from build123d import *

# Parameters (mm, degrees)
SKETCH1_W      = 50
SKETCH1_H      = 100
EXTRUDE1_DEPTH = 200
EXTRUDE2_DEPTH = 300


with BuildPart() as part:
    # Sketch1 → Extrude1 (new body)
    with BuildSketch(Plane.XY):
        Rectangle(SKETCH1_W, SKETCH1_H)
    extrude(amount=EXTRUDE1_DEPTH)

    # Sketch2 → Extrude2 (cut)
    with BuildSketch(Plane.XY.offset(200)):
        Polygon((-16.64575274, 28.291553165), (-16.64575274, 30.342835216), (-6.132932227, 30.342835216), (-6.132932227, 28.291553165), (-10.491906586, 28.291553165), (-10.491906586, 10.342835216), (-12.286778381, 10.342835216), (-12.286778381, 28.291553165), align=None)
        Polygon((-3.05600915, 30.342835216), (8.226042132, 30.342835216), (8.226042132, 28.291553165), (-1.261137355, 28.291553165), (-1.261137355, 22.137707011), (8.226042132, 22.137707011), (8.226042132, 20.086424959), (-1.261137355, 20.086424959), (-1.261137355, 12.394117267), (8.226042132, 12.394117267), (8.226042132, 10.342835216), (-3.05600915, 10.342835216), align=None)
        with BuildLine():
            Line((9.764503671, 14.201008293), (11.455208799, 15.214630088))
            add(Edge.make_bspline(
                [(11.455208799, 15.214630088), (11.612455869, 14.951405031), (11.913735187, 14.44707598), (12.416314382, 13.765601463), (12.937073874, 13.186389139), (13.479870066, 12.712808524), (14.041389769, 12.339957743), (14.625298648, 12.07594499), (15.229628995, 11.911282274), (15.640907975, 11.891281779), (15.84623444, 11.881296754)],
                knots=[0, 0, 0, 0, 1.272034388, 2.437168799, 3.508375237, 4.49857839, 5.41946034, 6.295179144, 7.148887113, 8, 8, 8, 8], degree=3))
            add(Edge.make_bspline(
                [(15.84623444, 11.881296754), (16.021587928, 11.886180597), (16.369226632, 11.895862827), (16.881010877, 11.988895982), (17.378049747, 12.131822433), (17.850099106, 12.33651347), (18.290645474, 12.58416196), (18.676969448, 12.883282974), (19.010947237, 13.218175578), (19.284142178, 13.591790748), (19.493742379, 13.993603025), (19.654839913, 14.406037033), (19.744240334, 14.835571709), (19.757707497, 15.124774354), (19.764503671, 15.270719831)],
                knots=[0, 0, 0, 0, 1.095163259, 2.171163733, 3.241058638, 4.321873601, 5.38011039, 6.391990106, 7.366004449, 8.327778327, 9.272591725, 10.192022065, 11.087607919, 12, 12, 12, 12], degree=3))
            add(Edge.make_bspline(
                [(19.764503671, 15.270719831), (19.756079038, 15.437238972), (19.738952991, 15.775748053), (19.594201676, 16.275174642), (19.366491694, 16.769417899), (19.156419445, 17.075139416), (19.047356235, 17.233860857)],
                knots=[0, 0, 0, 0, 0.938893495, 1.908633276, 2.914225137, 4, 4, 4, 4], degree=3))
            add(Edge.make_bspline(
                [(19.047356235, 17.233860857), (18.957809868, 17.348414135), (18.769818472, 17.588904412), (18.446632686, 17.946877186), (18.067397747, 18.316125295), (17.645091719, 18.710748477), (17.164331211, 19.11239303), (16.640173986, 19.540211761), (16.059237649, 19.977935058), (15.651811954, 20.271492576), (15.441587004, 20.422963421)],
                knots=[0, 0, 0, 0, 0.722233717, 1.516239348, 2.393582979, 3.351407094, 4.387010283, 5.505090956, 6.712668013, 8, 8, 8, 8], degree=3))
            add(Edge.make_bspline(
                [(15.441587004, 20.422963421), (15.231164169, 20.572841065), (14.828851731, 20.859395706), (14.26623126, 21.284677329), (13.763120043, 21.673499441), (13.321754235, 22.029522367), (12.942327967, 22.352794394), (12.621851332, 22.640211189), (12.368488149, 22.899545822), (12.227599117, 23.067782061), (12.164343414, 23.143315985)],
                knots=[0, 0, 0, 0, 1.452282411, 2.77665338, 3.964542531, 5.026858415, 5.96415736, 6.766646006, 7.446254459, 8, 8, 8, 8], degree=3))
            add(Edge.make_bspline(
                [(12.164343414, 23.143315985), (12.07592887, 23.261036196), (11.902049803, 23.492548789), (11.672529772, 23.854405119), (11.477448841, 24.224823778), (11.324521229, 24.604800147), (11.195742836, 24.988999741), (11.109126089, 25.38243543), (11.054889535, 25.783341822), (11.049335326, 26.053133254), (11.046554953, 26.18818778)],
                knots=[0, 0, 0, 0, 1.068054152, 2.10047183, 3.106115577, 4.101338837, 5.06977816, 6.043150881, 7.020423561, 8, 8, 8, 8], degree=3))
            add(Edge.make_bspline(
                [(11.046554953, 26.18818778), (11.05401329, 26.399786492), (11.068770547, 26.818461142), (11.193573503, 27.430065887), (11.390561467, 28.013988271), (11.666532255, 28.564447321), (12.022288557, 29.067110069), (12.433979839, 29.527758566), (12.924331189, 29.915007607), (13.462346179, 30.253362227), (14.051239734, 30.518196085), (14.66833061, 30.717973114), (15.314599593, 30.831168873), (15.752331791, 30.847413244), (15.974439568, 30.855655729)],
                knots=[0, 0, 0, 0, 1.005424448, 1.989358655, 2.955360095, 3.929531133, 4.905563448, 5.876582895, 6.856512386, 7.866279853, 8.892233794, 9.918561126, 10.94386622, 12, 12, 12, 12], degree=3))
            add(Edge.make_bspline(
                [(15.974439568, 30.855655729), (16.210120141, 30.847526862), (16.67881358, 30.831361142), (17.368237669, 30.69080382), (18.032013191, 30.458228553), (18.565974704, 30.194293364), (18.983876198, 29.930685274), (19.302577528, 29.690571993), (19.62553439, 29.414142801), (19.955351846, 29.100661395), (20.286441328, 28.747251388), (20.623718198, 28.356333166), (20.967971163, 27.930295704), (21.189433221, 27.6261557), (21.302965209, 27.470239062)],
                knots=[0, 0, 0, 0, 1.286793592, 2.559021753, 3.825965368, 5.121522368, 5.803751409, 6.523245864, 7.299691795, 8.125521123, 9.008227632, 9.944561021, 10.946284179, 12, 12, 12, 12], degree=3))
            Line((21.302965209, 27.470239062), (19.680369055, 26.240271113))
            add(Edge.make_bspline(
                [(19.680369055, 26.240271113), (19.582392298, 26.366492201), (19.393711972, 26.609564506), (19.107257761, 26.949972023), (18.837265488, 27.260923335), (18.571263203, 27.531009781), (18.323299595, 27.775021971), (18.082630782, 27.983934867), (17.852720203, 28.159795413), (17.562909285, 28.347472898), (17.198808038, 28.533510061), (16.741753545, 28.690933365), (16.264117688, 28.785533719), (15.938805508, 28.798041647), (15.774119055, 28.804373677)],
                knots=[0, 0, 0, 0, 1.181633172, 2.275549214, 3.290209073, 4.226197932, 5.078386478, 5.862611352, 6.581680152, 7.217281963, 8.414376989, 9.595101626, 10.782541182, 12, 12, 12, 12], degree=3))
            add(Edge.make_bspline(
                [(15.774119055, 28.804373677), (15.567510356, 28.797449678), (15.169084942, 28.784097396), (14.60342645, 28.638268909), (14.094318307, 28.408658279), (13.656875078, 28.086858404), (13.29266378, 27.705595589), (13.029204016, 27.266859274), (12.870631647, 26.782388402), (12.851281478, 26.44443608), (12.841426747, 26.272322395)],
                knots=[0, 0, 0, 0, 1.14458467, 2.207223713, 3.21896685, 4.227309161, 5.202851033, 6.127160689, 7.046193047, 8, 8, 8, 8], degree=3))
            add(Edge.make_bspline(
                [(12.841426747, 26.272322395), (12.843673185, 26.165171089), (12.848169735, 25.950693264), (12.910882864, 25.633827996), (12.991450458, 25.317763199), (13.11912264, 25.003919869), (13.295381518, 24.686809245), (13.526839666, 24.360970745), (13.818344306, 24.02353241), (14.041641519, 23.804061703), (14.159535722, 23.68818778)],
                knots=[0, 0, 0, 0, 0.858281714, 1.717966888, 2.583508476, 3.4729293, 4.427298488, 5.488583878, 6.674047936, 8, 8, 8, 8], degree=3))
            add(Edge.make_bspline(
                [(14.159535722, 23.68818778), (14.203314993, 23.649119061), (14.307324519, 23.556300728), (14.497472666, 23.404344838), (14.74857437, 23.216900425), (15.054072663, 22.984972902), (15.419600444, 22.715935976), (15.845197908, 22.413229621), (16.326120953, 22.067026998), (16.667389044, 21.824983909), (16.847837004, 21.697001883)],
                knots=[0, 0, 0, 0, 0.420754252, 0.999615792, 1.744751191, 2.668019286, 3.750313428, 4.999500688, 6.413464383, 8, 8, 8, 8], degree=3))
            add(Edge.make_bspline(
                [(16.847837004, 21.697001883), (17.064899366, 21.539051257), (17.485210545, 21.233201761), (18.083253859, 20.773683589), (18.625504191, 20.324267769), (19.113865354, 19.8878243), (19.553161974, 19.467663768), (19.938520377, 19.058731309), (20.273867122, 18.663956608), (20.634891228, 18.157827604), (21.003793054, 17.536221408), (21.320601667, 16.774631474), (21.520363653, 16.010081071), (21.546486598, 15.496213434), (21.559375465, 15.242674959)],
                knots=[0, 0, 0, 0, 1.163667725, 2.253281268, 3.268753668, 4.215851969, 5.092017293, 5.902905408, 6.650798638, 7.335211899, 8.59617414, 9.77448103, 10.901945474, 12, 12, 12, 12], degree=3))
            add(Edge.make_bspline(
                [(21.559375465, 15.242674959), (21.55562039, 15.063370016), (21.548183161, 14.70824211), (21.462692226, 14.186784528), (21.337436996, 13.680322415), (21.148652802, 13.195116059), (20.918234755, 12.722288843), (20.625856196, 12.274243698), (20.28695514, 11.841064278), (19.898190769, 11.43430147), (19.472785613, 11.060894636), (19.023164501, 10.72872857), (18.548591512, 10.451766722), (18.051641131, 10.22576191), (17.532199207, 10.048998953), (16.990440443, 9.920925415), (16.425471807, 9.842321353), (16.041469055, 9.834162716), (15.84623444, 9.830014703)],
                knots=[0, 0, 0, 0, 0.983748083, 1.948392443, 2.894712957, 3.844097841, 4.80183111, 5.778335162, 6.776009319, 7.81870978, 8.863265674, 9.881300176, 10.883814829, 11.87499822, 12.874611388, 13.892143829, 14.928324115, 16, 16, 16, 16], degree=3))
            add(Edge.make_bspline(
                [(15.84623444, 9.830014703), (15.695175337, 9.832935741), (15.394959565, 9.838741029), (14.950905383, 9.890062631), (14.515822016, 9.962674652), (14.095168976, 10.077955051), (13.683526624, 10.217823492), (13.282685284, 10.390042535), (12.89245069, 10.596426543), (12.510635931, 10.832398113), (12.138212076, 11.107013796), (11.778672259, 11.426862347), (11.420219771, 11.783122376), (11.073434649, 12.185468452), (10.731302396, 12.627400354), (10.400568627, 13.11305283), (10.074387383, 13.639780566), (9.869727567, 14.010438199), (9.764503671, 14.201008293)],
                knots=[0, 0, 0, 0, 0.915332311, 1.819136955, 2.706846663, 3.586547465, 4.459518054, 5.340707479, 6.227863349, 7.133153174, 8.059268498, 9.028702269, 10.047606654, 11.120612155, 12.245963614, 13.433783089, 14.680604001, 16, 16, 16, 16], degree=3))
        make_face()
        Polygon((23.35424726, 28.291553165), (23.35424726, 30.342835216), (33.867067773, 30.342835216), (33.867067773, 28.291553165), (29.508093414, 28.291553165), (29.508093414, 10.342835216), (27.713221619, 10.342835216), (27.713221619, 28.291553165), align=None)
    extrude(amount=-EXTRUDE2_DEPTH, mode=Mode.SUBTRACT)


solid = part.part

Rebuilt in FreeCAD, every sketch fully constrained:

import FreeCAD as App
import Part
import Sketcher

V = App.Vector
Q = App.Units.Quantity


def add_polygon(sketch, points):
    """Adds a closed chain of lines whose ends are joined by coincident constraints."""
    first, n = sketch.GeometryCount, len(points)
    for a, b in zip(points, points[1:] + points[:1]):
        sketch.addGeometry(Part.LineSegment(App.Vector(*a, 0), App.Vector(*b, 0)), False)
    for i in range(n):
        sketch.addConstraint(Sketcher.Constraint("Coincident", first + i, 2, first + (i + 1) % n, 1))

doc = App.newDocument("Part")
body = doc.addObject("PartDesign::Body", "Body")

# Sketch on XY plane
sketch1 = doc.addObject("Sketcher::SketchObject", "Sketch")
body.addObject(sketch1)
sketch1.AttachmentSupport = (doc.XY_Plane, [""])
sketch1.MapMode = "FlatFace"
add_polygon(sketch1, [(-25, 50), (-25, -50), (25, -50), (25, 50)])  # lines 0-3
sketch1.addConstraint(Sketcher.Constraint("Vertical", 0))
sketch1.addConstraint(Sketcher.Constraint("Horizontal", 1))
sketch1.addConstraint(Sketcher.Constraint("Vertical", 2))
sketch1.addConstraint(Sketcher.Constraint("Horizontal", 3))
sketch1.addConstraint(Sketcher.Constraint("Symmetric", 0, 2, 2, 2, -1, 1))
sketch1.addConstraint(Sketcher.Constraint("DistanceX", 1, 1, 1, 2, Q("50 mm")))
sketch1.addConstraint(Sketcher.Constraint("DistanceY", 0, 2, 0, 1, Q("100 mm")))
pad1 = doc.addObject("PartDesign::Pad", "Pad")
body.addObject(pad1)
pad1.Profile = sketch1
pad1.Length = 200

# Sketch on XY plane
sketch2 = doc.addObject("Sketcher::SketchObject", "Sketch001")
body.addObject(sketch2)
sketch2.AttachmentSupport = (doc.XY_Plane, [""])
sketch2.MapMode = "FlatFace"
sketch2.AttachmentOffset = App.Placement(V(0, 0, 200), App.Rotation())
add_polygon(sketch2, [(-16.645753, 30.342835), (-16.645753, 28.291553), (-12.286778, 28.291553), (-12.286778, 10.342835), (-10.491907, 10.342835), (-10.491907, 28.291553), (-6.132932, 28.291553), (-6.132932, 30.342835)])  # lines 0-7
add_polygon(sketch2, [(8.226042, 30.342835), (-3.056009, 30.342835), (-3.056009, 10.342835), (8.226042, 10.342835), (8.226042, 12.394117), (-1.261137, 12.394117), (-1.261137, 20.086425), (8.226042, 20.086425), (8.226042, 22.137707), (-1.261137, 22.137707), (-1.261137, 28.291553), (8.226042, 28.291553)])  # lines 8-19
sketch2.addGeometry(Part.LineSegment(V(11.455209, 15.21463, 0), V(9.764504, 14.201008, 0)), False)  # 20
sketch2.addGeometry(Part.BSplineCurve([V(15.846234, 9.830015, 0), V(15.695175, 9.832936, 0), V(15.39496, 9.838741, 0), V(14.950905, 9.890063, 0), V(14.515822, 9.962675, 0), V(14.095169, 10.077955, 0), V(13.683527, 10.217823, 0), V(13.282685, 10.390043, 0), V(12.892451, 10.596427, 0), V(12.510636, 10.832398, 0), V(12.138212, 11.107014, 0), V(11.778672, 11.426862, 0), V(11.42022, 11.783122, 0), V(11.073435, 12.185468, 0), V(10.731302, 12.6274, 0), V(10.400569, 13.113053, 0), V(10.074387, 13.639781, 0), V(9.869728, 14.010438, 0), V(9.764504, 14.201008, 0)], [4, 1, 1, 1, 1, 1, 1, 1, 1, 1, 1, 1, 1, 1, 1, 1, 4], [0, 0.915332311, 1.819136955, 2.706846663, 3.586547465, 4.459518054, 5.340707479, 6.227863349, 7.133153174, 8.059268498, 9.028702269, 10.047606654, 11.120612155, 12.245963614, 13.433783089, 14.680604001, 16], False, 3, [1, 1, 1, 1, 1, 1, 1, 1, 1, 1, 1, 1, 1, 1, 1, 1, 1, 1, 1], False), False)  # 21
sketch2.addGeometry(Part.BSplineCurve([V(21.559375, 15.242675, 0), V(21.55562, 15.06337, 0), V(21.548183, 14.708242, 0), V(21.462692, 14.186785, 0), V(21.337437, 13.680322, 0), V(21.148653, 13.195116, 0), V(20.918235, 12.722289, 0), V(20.625856, 12.274244, 0), V(20.286955, 11.841064, 0), V(19.898191, 11.434301, 0), V(19.472786, 11.060895, 0), V(19.023165, 10.728729, 0), V(18.548592, 10.451767, 0), V(18.051641, 10.225762, 0), V(17.532199, 10.048999, 0), V(16.99044, 9.920925, 0), V(16.425472, 9.842321, 0), V(16.041469, 9.834163, 0), V(15.846234, 9.830015, 0)], [4, 1, 1, 1, 1, 1, 1, 1, 1, 1, 1, 1, 1, 1, 1, 1, 4], [0, 0.983748083, 1.948392443, 2.894712957, 3.844097841, 4.80183111, 5.778335162, 6.776009319, 7.81870978, 8.863265674, 9.881300176, 10.883814829, 11.87499822, 12.874611388, 13.892143829, 14.928324115, 16], False, 3, [1, 1, 1, 1, 1, 1, 1, 1, 1, 1, 1, 1, 1, 1, 1, 1, 1, 1, 1], False), False)  # 22
sketch2.addGeometry(Part.BSplineCurve([V(16.847837, 21.697002, 0), V(17.064899, 21.539051, 0), V(17.485211, 21.233202, 0), V(18.083254, 20.773684, 0), V(18.625504, 20.324268, 0), V(19.113865, 19.887824, 0), V(19.553162, 19.467664, 0), V(19.93852, 19.058731, 0), V(20.273867, 18.663957, 0), V(20.634891, 18.157828, 0), V(21.003793, 17.536221, 0), V(21.320602, 16.774631, 0), V(21.520364, 16.010081, 0), V(21.546487, 15.496213, 0), V(21.559375, 15.242675, 0)], [4, 1, 1, 1, 1, 1, 1, 1, 1, 1, 1, 1, 4], [0, 1.163667725, 2.253281268, 3.268753668, 4.215851969, 5.092017293, 5.902905408, 6.650798638, 7.335211899, 8.59617414, 9.77448103, 10.901945474, 12], False, 3, [1, 1, 1, 1, 1, 1, 1, 1, 1, 1, 1, 1, 1, 1, 1], False), False)  # 23
sketch2.addGeometry(Part.BSplineCurve([V(14.159536, 23.688188, 0), V(14.203315, 23.649119, 0), V(14.307325, 23.556301, 0), V(14.497473, 23.404345, 0), V(14.748574, 23.2169, 0), V(15.054073, 22.984973, 0), V(15.4196, 22.715936, 0), V(15.845198, 22.41323, 0), V(16.326121, 22.067027, 0), V(16.667389, 21.824984, 0), V(16.847837, 21.697002, 0)], [4, 1, 1, 1, 1, 1, 1, 1, 4], [0, 0.420754252, 0.999615792, 1.744751191, 2.668019286, 3.750313428, 4.999500688, 6.413464383, 8], False, 3, [1, 1, 1, 1, 1, 1, 1, 1, 1, 1, 1], False), False)  # 24
sketch2.addGeometry(Part.BSplineCurve([V(12.841427, 26.272322, 0), V(12.843673, 26.165171, 0), V(12.84817, 25.950693, 0), V(12.910883, 25.633828, 0), V(12.99145, 25.317763, 0), V(13.119123, 25.00392, 0), V(13.295382, 24.686809, 0), V(13.52684, 24.360971, 0), V(13.818344, 24.023532, 0), V(14.041642, 23.804062, 0), V(14.159536, 23.688188, 0)], [4, 1, 1, 1, 1, 1, 1, 1, 4], [0, 0.858281714, 1.717966888, 2.583508476, 3.4729293, 4.427298488, 5.488583878, 6.674047936, 8], False, 3, [1, 1, 1, 1, 1, 1, 1, 1, 1, 1, 1], False), False)  # 25
sketch2.addGeometry(Part.BSplineCurve([V(15.774119, 28.804374, 0), V(15.56751, 28.79745, 0), V(15.169085, 28.784097, 0), V(14.603426, 28.638269, 0), V(14.094318, 28.408658, 0), V(13.656875, 28.086858, 0), V(13.292664, 27.705596, 0), V(13.029204, 27.266859, 0), V(12.870632, 26.782388, 0), V(12.851281, 26.444436, 0), V(12.841427, 26.272322, 0)], [4, 1, 1, 1, 1, 1, 1, 1, 4], [0, 1.14458467, 2.207223713, 3.21896685, 4.227309161, 5.202851033, 6.127160689, 7.046193047, 8], False, 3, [1, 1, 1, 1, 1, 1, 1, 1, 1, 1, 1], False), False)  # 26
sketch2.addGeometry(Part.BSplineCurve([V(19.680369, 26.240271, 0), V(19.582392, 26.366492, 0), V(19.393712, 26.609565, 0), V(19.107258, 26.949972, 0), V(18.837265, 27.260923, 0), V(18.571263, 27.53101, 0), V(18.3233, 27.775022, 0), V(18.082631, 27.983935, 0), V(17.85272, 28.159795, 0), V(17.562909, 28.347473, 0), V(17.198808, 28.53351, 0), V(16.741754, 28.690933, 0), V(16.264118, 28.785534, 0), V(15.938806, 28.798042, 0), V(15.774119, 28.804374, 0)], [4, 1, 1, 1, 1, 1, 1, 1, 1, 1, 1, 1, 4], [0, 1.181633172, 2.275549214, 3.290209073, 4.226197932, 5.078386478, 5.862611352, 6.581680152, 7.217281963, 8.414376989, 9.595101626, 10.782541182, 12], False, 3, [1, 1, 1, 1, 1, 1, 1, 1, 1, 1, 1, 1, 1, 1, 1], False), False)  # 27
sketch2.addGeometry(Part.LineSegment(V(19.680369, 26.240271, 0), V(21.302965, 27.470239, 0)), False)  # 28
sketch2.addGeometry(Part.BSplineCurve([V(15.97444, 30.855656, 0), V(16.21012, 30.847527, 0), V(16.678814, 30.831361, 0), V(17.368238, 30.690804, 0), V(18.032013, 30.458229, 0), V(18.565975, 30.194293, 0), V(18.983876, 29.930685, 0), V(19.302578, 29.690572, 0), V(19.625534, 29.414143, 0), V(19.955352, 29.100661, 0), V(20.286441, 28.747251, 0), V(20.623718, 28.356333, 0), V(20.967971, 27.930296, 0), V(21.189433, 27.626156, 0), V(21.302965, 27.470239, 0)], [4, 1, 1, 1, 1, 1, 1, 1, 1, 1, 1, 1, 4], [0, 1.286793592, 2.559021753, 3.825965368, 5.121522368, 5.803751409, 6.523245864, 7.299691795, 8.125521123, 9.008227632, 9.944561021, 10.946284179, 12], False, 3, [1, 1, 1, 1, 1, 1, 1, 1, 1, 1, 1, 1, 1, 1, 1], False), False)  # 29
sketch2.addGeometry(Part.BSplineCurve([V(11.046555, 26.188188, 0), V(11.054013, 26.399786, 0), V(11.068771, 26.818461, 0), V(11.193574, 27.430066, 0), V(11.390561, 28.013988, 0), V(11.666532, 28.564447, 0), V(12.022289, 29.06711, 0), V(12.43398, 29.527759, 0), V(12.924331, 29.915008, 0), V(13.462346, 30.253362, 0), V(14.05124, 30.518196, 0), V(14.668331, 30.717973, 0), V(15.3146, 30.831169, 0), V(15.752332, 30.847413, 0), V(15.97444, 30.855656, 0)], [4, 1, 1, 1, 1, 1, 1, 1, 1, 1, 1, 1, 4], [0, 1.005424448, 1.989358655, 2.955360095, 3.929531133, 4.905563448, 5.876582895, 6.856512386, 7.866279853, 8.892233794, 9.918561126, 10.94386622, 12], False, 3, [1, 1, 1, 1, 1, 1, 1, 1, 1, 1, 1, 1, 1, 1, 1], False), False)  # 30
sketch2.addGeometry(Part.BSplineCurve([V(12.164343, 23.143316, 0), V(12.075929, 23.261036, 0), V(11.90205, 23.492549, 0), V(11.67253, 23.854405, 0), V(11.477449, 24.224824, 0), V(11.324521, 24.6048, 0), V(11.195743, 24.989, 0), V(11.109126, 25.382435, 0), V(11.05489, 25.783342, 0), V(11.049335, 26.053133, 0), V(11.046555, 26.188188, 0)], [4, 1, 1, 1, 1, 1, 1, 1, 4], [0, 1.068054152, 2.10047183, 3.106115577, 4.101338837, 5.06977816, 6.043150881, 7.020423561, 8], False, 3, [1, 1, 1, 1, 1, 1, 1, 1, 1, 1, 1], False), False)  # 31
sketch2.addGeometry(Part.BSplineCurve([V(15.441587, 20.422963, 0), V(15.231164, 20.572841, 0), V(14.828852, 20.859396, 0), V(14.266231, 21.284677, 0), V(13.76312, 21.673499, 0), V(13.321754, 22.029522, 0), V(12.942328, 22.352794, 0), V(12.621851, 22.640211, 0), V(12.368488, 22.899546, 0), V(12.227599, 23.067782, 0), V(12.164343, 23.143316, 0)], [4, 1, 1, 1, 1, 1, 1, 1, 4], [0, 1.452282411, 2.77665338, 3.964542531, 5.026858415, 5.96415736, 6.766646006, 7.446254459, 8], False, 3, [1, 1, 1, 1, 1, 1, 1, 1, 1, 1, 1], False), False)  # 32
sketch2.addGeometry(Part.BSplineCurve([V(19.047356, 17.233861, 0), V(18.95781, 17.348414, 0), V(18.769818, 17.588904, 0), V(18.446633, 17.946877, 0), V(18.067398, 18.316125, 0), V(17.645092, 18.710748, 0), V(17.164331, 19.112393, 0), V(16.640174, 19.540212, 0), V(16.059238, 19.977935, 0), V(15.651812, 20.271493, 0), V(15.441587, 20.422963, 0)], [4, 1, 1, 1, 1, 1, 1, 1, 4], [0, 0.722233717, 1.516239348, 2.393582979, 3.351407094, 4.387010283, 5.505090956, 6.712668013, 8], False, 3, [1, 1, 1, 1, 1, 1, 1, 1, 1, 1, 1], False), False)  # 33
sketch2.addGeometry(Part.BSplineCurve([V(19.764504, 15.27072, 0), V(19.756079, 15.437239, 0), V(19.738953, 15.775748, 0), V(19.594202, 16.275175, 0), V(19.366492, 16.769418, 0), V(19.156419, 17.075139, 0), V(19.047356, 17.233861, 0)], [4, 1, 1, 1, 4], [0, 0.938893495, 1.908633276, 2.914225137, 4], False, 3, [1, 1, 1, 1, 1, 1, 1], False), False)  # 34
sketch2.addGeometry(Part.BSplineCurve([V(15.846234, 11.881297, 0), V(16.021588, 11.886181, 0), V(16.369227, 11.895863, 0), V(16.881011, 11.988896, 0), V(17.37805, 12.131822, 0), V(17.850099, 12.336513, 0), V(18.290645, 12.584162, 0), V(18.676969, 12.883283, 0), V(19.010947, 13.218176, 0), V(19.284142, 13.591791, 0), V(19.493742, 13.993603, 0), V(19.65484, 14.406037, 0), V(19.74424, 14.835572, 0), V(19.757707, 15.124774, 0), V(19.764504, 15.27072, 0)], [4, 1, 1, 1, 1, 1, 1, 1, 1, 1, 1, 1, 4], [0, 1.095163259, 2.171163733, 3.241058638, 4.321873601, 5.38011039, 6.391990106, 7.366004449, 8.327778327, 9.272591725, 10.192022065, 11.087607919, 12], False, 3, [1, 1, 1, 1, 1, 1, 1, 1, 1, 1, 1, 1, 1, 1, 1], False), False)  # 35
sketch2.addGeometry(Part.BSplineCurve([V(11.455209, 15.21463, 0), V(11.612456, 14.951405, 0), V(11.913735, 14.447076, 0), V(12.416314, 13.765601, 0), V(12.937074, 13.186389, 0), V(13.47987, 12.712809, 0), V(14.04139, 12.339958, 0), V(14.625299, 12.075945, 0), V(15.229629, 11.911282, 0), V(15.640908, 11.891282, 0), V(15.846234, 11.881297, 0)], [4, 1, 1, 1, 1, 1, 1, 1, 4], [0, 1.272034388, 2.437168799, 3.508375237, 4.49857839, 5.41946034, 6.295179144, 7.148887113, 8], False, 3, [1, 1, 1, 1, 1, 1, 1, 1, 1, 1, 1], False), False)  # 36
add_polygon(sketch2, [(23.354247, 30.342835), (23.354247, 28.291553), (27.713222, 28.291553), (27.713222, 10.342835), (29.508093, 10.342835), (29.508093, 28.291553), (33.867068, 28.291553), (33.867068, 30.342835)])  # lines 37-44
sketch2.addConstraint(Sketcher.Constraint("Block", 21))
sketch2.addConstraint(Sketcher.Constraint("Block", 22))
sketch2.addConstraint(Sketcher.Constraint("Block", 23))
sketch2.addConstraint(Sketcher.Constraint("Block", 24))
sketch2.addConstraint(Sketcher.Constraint("Block", 25))
sketch2.addConstraint(Sketcher.Constraint("Block", 26))
sketch2.addConstraint(Sketcher.Constraint("Block", 27))
sketch2.addConstraint(Sketcher.Constraint("Block", 29))
sketch2.addConstraint(Sketcher.Constraint("Block", 30))
sketch2.addConstraint(Sketcher.Constraint("Block", 31))
sketch2.addConstraint(Sketcher.Constraint("Block", 32))
sketch2.addConstraint(Sketcher.Constraint("Block", 33))
sketch2.addConstraint(Sketcher.Constraint("Block", 34))
sketch2.addConstraint(Sketcher.Constraint("Block", 35))
sketch2.addConstraint(Sketcher.Constraint("Block", 36))
sketch2.addConstraint(Sketcher.Constraint("Coincident", 20, 2, 21, 2))
sketch2.addConstraint(Sketcher.Constraint("Coincident", 27, 1, 28, 1))
sketch2.addConstraint(Sketcher.Constraint("Coincident", 28, 2, 29, 2))
sketch2.addConstraint(Sketcher.Constraint("Coincident", 36, 1, 20, 1))
sketch2.addConstraint(Sketcher.Constraint("Vertical", 0))
sketch2.addConstraint(Sketcher.Constraint("Horizontal", 1))
sketch2.addConstraint(Sketcher.Constraint("Vertical", 2))
sketch2.addConstraint(Sketcher.Constraint("Horizontal", 3))
sketch2.addConstraint(Sketcher.Constraint("Vertical", 4))
sketch2.addConstraint(Sketcher.Constraint("Horizontal", 5))
sketch2.addConstraint(Sketcher.Constraint("Vertical", 6))
sketch2.addConstraint(Sketcher.Constraint("Horizontal", 7))
sketch2.addConstraint(Sketcher.Constraint("Horizontal", 8))
sketch2.addConstraint(Sketcher.Constraint("Vertical", 9))
sketch2.addConstraint(Sketcher.Constraint("Horizontal", 10))
sketch2.addConstraint(Sketcher.Constraint("Vertical", 11))
sketch2.addConstraint(Sketcher.Constraint("Horizontal", 12))
sketch2.addConstraint(Sketcher.Constraint("Vertical", 13))
sketch2.addConstraint(Sketcher.Constraint("Horizontal", 14))
sketch2.addConstraint(Sketcher.Constraint("Vertical", 15))
sketch2.addConstraint(Sketcher.Constraint("Horizontal", 16))
sketch2.addConstraint(Sketcher.Constraint("Vertical", 17))
sketch2.addConstraint(Sketcher.Constraint("Horizontal", 18))
sketch2.addConstraint(Sketcher.Constraint("Vertical", 19))
sketch2.addConstraint(Sketcher.Constraint("Vertical", 37))
sketch2.addConstraint(Sketcher.Constraint("Horizontal", 38))
sketch2.addConstraint(Sketcher.Constraint("Vertical", 39))
sketch2.addConstraint(Sketcher.Constraint("Horizontal", 40))
sketch2.addConstraint(Sketcher.Constraint("Vertical", 41))
sketch2.addConstraint(Sketcher.Constraint("Horizontal", 42))
sketch2.addConstraint(Sketcher.Constraint("Vertical", 43))
sketch2.addConstraint(Sketcher.Constraint("Horizontal", 44))
sketch2.addConstraint(Sketcher.Constraint("Horizontal", 1, 2, 4, 2))
sketch2.addConstraint(Sketcher.Constraint("Horizontal", 7, 2, 8, 2))
sketch2.addConstraint(Sketcher.Constraint("Horizontal", 3, 2, 9, 2))
sketch2.addConstraint(Sketcher.Constraint("Horizontal", 5, 2, 17, 2))
sketch2.addConstraint(Sketcher.Constraint("Horizontal", 18, 2, 37, 2))
sketch2.addConstraint(Sketcher.Constraint("Horizontal", 10, 2, 39, 2))
sketch2.addConstraint(Sketcher.Constraint("Horizontal", 38, 2, 41, 2))
sketch2.addConstraint(Sketcher.Constraint("Horizontal", 19, 2, 43, 2))
sketch2.addConstraint(Sketcher.Constraint("Vertical", 11, 2, 14, 2))
sketch2.addConstraint(Sketcher.Constraint("Vertical", 13, 2, 16, 2))
sketch2.addConstraint(Sketcher.Constraint("Vertical", 15, 2, 18, 2))
sketch2.addConstraint(Sketcher.Constraint("Equal", 1, 5))
sketch2.addConstraint(Sketcher.Constraint("Equal", 5, 38))
sketch2.addConstraint(Sketcher.Constraint("Equal", 3, 40))
sketch2.addConstraint(Sketcher.Constraint("Equal", 38, 42))
sketch2.addConstraint(Sketcher.Constraint("Equal", 6, 11))
sketch2.addConstraint(Sketcher.Constraint("Equal", 11, 15))
sketch2.addConstraint(Sketcher.Constraint("DistanceY", 9, 2, 9, 1, Q("20 mm")))
sketch2.addConstraint(Sketcher.Constraint("DistanceX", 3, 1, 3, 2, Q("1.794872 mm")))
sketch2.addConstraint(Sketcher.Constraint("DistanceX", 7, 2, 7, 1, Q("10.512821 mm")))
sketch2.addConstraint(Sketcher.Constraint("DistanceX", 8, 2, 8, 1, Q("11.282051 mm")))
sketch2.addConstraint(Sketcher.Constraint("DistanceX", 12, 2, 12, 1, Q("9.487179 mm")))
sketch2.addConstraint(Sketcher.Constraint("DistanceY", 20, 2, 15, 2, Q("7.936699 mm")))
sketch2.addConstraint(Sketcher.Constraint("DistanceY", 0, 2, 0, 1, Q("2.051282 mm")))
sketch2.addConstraint(Sketcher.Constraint("DistanceY", 13, 1, 13, 2, Q("7.692308 mm")))
sketch2.addConstraint(Sketcher.Constraint("DistanceX", 1, 2, -1, 1, Q("12.286778 mm")))
sketch2.addConstraint(Sketcher.Constraint("DistanceX", 8, 2, -1, 1, Q("3.056009 mm")))
sketch2.addConstraint(Sketcher.Constraint("DistanceX", -1, 1, 38, 2, Q("27.713222 mm")))
pocket1 = doc.addObject("PartDesign::Pocket", "Pocket")
body.addObject(pocket1)
pocket1.Profile = sketch2
pocket1.Length = 300

doc.recompute()
